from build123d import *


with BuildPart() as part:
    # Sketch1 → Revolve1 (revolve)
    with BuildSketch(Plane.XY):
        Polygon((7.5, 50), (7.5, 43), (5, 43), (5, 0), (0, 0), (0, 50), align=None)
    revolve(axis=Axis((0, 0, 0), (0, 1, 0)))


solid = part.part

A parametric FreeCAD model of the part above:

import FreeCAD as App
import Part
import Sketcher


def add_polygon(sketch, points):
    """Adds a closed chain of lines whose ends are joined by coincident constraints."""
    first, n = sketch.GeometryCount, len(points)
    for a, b in zip(points, points[1:] + points[:1]):
        sketch.addGeometry(Part.LineSegment(App.Vector(*a, 0), App.Vector(*b, 0)), False)
    for i in range(n):
        sketch.addConstraint(Sketcher.Constraint("Coincident", first + i, 2, first + (i + 1) % n, 1))

doc = App.newDocument("Part")
params = doc.addObject("Spreadsheet::Sheet", "Params")
for row, (alias, value) in enumerate([
    ("sketch1_width", "5 mm"),
    ("sketch1_height", "7 mm"),
    ("sketch1_height2", "50 mm"),
    ("sketch1_width2", "7.5 mm"),
    ("revolution_angle", "360 deg"),
], start=1):
    params.set(f"A{row}", alias)
    params.set(f"B{row}", "=" + value)
    params.setAlias(f"B{row}", alias)

body = doc.addObject("PartDesign::Body", "Body")

# Sketch on XY plane
sketch1 = doc.addObject("Sketcher::SketchObject", "Sketch")
body.addObject(sketch1)
sketch1.AttachmentSupport = (doc.XY_Plane, [""])
sketch1.MapMode = "FlatFace"
add_polygon(sketch1, [(7.5, 43), (7.5, 50), (0, 50), (0, 0), (5, 0), (5, 43)])  # lines 0-5
sketch1.addConstraint([
    Sketcher.Constraint("Vertical", 0),
    Sketcher.Constraint("Horizontal", 1),
    Sketcher.Constraint("Vertical", 2),
    Sketcher.Constraint("Horizontal", 3),
    Sketcher.Constraint("Vertical", 4),
    Sketcher.Constraint("Horizontal", 5),
    Sketcher.Constraint("Coincident", 2, 2, -1, 1),
    Sketcher.Constraint("DistanceX", 3, 1, 3, 2, 5.0),
    Sketcher.Constraint("DistanceY", 0, 1, 0, 2, 7.0),
    Sketcher.Constraint("DistanceY", 2, 2, 2, 1, 50.0),
    Sketcher.Constraint("DistanceX", 1, 2, 1, 1, 7.5),
])
sketch1.setExpression("Constraints[13]", "Params.sketch1_width")
sketch1.setExpression("Constraints[14]", "Params.sketch1_height")
sketch1.setExpression("Constraints[15]", "Params.sketch1_height2")
sketch1.setExpression("Constraints[16]", "Params.sketch1_width2")
revolution = doc.addObject("PartDesign::Revolution", "Revolution")
body.addObject(revolution)
revolution.Profile = sketch1
revolution.ReferenceAxis = (sketch1, ["V_Axis"])
revolution.setExpression("Angle", "Params.revolution_angle")

doc.recompute()
